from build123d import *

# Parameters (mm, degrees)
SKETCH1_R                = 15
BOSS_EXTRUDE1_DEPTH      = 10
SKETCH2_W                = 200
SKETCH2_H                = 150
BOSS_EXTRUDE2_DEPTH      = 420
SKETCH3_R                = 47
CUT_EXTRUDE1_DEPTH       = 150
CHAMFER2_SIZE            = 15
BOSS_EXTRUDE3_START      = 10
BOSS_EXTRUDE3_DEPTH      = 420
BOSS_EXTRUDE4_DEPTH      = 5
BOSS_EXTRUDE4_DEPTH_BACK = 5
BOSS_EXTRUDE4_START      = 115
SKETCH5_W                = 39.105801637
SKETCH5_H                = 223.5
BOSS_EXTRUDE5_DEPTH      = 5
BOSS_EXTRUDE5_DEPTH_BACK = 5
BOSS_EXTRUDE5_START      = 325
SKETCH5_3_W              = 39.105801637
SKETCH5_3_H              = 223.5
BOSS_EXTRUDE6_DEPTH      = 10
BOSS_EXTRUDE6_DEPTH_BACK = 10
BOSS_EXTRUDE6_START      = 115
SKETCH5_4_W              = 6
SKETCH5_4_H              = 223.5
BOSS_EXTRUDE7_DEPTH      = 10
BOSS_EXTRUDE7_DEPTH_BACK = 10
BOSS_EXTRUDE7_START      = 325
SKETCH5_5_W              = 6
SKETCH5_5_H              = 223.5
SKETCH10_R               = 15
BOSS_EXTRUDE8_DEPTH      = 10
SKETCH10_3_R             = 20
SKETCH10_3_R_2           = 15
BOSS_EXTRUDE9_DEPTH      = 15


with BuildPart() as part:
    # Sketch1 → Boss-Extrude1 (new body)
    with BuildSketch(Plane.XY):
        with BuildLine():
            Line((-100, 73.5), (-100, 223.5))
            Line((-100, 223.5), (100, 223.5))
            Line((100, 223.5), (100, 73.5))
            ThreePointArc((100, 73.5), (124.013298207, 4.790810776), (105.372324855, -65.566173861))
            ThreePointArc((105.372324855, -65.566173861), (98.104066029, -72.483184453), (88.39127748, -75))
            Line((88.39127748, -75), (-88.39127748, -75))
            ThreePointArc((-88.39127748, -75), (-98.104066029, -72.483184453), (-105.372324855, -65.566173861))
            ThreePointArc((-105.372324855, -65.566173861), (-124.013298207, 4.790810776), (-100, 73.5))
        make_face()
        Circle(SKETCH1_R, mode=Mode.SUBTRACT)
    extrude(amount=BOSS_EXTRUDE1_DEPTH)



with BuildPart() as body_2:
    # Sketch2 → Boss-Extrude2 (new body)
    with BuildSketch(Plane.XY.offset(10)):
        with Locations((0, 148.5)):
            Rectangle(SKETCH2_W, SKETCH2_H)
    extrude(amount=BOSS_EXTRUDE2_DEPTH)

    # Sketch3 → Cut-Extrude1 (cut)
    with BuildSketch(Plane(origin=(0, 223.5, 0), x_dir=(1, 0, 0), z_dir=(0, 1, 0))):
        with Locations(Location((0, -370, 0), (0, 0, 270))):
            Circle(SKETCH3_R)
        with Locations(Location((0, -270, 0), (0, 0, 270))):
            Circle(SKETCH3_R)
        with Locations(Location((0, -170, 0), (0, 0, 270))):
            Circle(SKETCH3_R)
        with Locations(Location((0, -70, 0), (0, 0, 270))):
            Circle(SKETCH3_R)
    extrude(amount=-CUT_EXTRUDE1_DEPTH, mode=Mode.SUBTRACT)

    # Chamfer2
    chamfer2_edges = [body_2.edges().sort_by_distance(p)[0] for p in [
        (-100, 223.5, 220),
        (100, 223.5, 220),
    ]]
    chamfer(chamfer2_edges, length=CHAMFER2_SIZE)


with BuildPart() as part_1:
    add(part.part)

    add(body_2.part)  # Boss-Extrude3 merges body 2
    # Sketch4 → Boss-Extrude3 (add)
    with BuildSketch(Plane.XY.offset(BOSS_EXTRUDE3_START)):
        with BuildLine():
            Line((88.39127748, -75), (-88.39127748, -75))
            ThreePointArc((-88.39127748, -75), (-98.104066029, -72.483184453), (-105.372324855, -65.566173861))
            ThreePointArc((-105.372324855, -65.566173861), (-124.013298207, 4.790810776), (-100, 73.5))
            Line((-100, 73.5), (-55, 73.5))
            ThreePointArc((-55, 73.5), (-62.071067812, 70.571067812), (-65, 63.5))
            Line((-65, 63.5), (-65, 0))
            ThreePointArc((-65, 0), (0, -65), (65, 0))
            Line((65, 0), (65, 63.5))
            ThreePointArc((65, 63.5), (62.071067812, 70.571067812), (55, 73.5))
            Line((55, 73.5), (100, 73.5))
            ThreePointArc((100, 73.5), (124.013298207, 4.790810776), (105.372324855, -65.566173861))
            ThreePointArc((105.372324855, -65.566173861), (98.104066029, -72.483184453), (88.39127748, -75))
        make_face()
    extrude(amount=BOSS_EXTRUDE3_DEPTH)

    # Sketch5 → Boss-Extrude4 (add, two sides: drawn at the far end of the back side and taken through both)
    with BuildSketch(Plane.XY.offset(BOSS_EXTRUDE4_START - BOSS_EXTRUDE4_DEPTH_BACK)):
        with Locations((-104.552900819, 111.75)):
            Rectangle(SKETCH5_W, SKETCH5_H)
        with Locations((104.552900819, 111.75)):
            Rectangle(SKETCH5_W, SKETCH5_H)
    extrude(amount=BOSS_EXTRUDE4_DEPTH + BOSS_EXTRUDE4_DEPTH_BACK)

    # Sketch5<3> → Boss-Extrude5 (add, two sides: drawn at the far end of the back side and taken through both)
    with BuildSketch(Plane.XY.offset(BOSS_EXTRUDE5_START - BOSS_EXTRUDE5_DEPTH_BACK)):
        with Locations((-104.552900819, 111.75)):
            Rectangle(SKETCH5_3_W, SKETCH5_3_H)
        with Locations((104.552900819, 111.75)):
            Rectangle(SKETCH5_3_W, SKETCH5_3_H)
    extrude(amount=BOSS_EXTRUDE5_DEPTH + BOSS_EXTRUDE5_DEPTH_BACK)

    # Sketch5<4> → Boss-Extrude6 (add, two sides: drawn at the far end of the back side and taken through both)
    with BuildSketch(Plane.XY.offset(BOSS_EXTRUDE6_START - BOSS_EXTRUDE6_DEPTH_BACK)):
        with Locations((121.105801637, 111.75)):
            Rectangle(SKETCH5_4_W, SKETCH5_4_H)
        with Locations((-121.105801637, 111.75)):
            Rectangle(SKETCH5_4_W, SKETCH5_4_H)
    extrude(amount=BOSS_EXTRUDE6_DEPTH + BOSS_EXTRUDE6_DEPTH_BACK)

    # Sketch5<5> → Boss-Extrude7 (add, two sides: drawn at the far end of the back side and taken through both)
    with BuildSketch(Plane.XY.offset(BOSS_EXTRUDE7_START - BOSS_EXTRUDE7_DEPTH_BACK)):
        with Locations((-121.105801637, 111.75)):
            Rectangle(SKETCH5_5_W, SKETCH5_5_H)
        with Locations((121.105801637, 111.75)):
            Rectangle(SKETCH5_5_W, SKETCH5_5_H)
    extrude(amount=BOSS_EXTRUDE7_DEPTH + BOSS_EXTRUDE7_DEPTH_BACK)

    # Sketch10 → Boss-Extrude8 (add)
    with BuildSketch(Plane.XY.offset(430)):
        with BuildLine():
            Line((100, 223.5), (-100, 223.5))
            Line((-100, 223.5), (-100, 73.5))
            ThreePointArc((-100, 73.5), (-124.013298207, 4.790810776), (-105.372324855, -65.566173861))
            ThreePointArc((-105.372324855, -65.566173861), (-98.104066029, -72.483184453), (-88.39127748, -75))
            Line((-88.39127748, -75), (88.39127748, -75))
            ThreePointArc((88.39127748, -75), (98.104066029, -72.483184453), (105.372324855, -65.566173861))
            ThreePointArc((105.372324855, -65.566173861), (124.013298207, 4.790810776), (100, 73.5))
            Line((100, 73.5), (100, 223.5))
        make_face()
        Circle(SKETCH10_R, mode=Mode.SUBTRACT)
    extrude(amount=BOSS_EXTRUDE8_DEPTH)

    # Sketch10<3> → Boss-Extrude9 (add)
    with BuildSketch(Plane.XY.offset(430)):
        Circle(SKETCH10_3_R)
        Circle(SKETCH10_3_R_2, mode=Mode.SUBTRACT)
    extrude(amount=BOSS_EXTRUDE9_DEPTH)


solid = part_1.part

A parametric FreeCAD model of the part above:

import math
import FreeCAD as App
import Part
import Sketcher

V = App.Vector


def edges_at(feature, points):
    """Names of the edges that pass closest to the given points."""
    edges = feature.Shape.Edges
    near = lambda p: min(range(len(edges)), key=lambda i: edges[i].distToShape(Part.Vertex(*p))[0])
    return sorted({f"Edge{near(p) + 1}" for p in points})


def add_polygon(sketch, points):
    """Adds a closed chain of lines whose ends are joined by coincident constraints."""
    first, n = sketch.GeometryCount, len(points)
    for a, b in zip(points, points[1:] + points[:1]):
        sketch.addGeometry(Part.LineSegment(App.Vector(*a, 0), App.Vector(*b, 0)), False)
    for i in range(n):
        sketch.addConstraint(Sketcher.Constraint("Coincident", first + i, 2, first + (i + 1) % n, 1))

doc = App.newDocument("Part")
params = doc.addObject("Spreadsheet::Sheet", "Params")
for row, (alias, value) in enumerate([
    ("sketch1_diameter", "30 mm"),
    ("sketch1_radius", "20 mm"),
    ("sketch1_width", "200 mm"),
    ("sketch1_height", "150 mm"),
    ("pad1_length", "10 mm"),
    ("sketch2_width", "200 mm"),
    ("sketch2_height", "150 mm"),
    ("pad2_length", "420 mm"),
    ("sketch3_diameter", "94 mm"),
    ("pocket1_length", "150 mm"),
    ("chamfer_size", "15 mm"),
    ("sketch4_radius", "20 mm"),
    ("sketch4_radius2", "10 mm"),
    ("sketch4_radius3", "65 mm"),
    ("sketch4_width", "45 mm"),
    ("sketch4_height", "63.5 mm"),
    ("pad3_length", "420 mm"),
    ("sketch5_height", "223.5 mm"),
    ("pad4_length", "5 mm"),
    ("pad4_length2", "5 mm"),
    ("sketch6_height", "223.5 mm"),
    ("pad5_length", "5 mm"),
    ("pad5_length2", "5 mm"),
    ("sketch7_width", "6 mm"),
    ("sketch7_height", "223.5 mm"),
    ("pad6_length", "10 mm"),
    ("pad6_length2", "10 mm"),
    ("sketch8_width", "6 mm"),
    ("sketch8_height", "223.5 mm"),
    ("pad7_length", "10 mm"),
    ("pad7_length2", "10 mm"),
    ("sketch9_diameter", "30 mm"),
    ("sketch9_radius", "20 mm"),
    ("sketch9_width", "200 mm"),
    ("sketch9_height", "150 mm"),
    ("pad8_length", "10 mm"),
    ("sketch10_diameter", "40 mm"),
    ("sketch10_diameter2", "30 mm"),
    ("pad9_length", "15 mm"),
], start=1):
    params.set(f"A{row}", alias)
    params.set(f"B{row}", "=" + value)
    params.setAlias(f"B{row}", alias)

body = doc.addObject("PartDesign::Body", "Body")

sketch1 = body.newObject("Sketcher::SketchObject", "Sketch")
sketch1.AttachmentSupport = (doc.getObject("XY_Plane"), [""])
sketch1.MapMode = "FlatFace"
sketch1.addGeometry([
    Part.LineSegment(V(-100, 224, 0), V(-100, 74, 0)),
    Part.ArcOfCircle(Part.Circle(V(0, 0, 0), V(0, 0, 1), 124), math.radians(144), math.radians(212)),
    Part.ArcOfCircle(Part.Circle(V(-88, -55, 0), V(0, 0, 1), 20), math.radians(-148), math.radians(-90)),
    Part.LineSegment(V(-88, -75, 0), V(88, -75, 0)),
    Part.ArcOfCircle(Part.Circle(V(88, -55, 0), V(0, 0, 1), 20), math.radians(-90), math.radians(-32)),
    Part.ArcOfCircle(Part.Circle(V(0, 0, 0), V(0, 0, 1), 124), math.radians(-32), math.radians(36)),
    Part.LineSegment(V(100, 74, 0), V(100, 224, 0)),
    Part.LineSegment(V(100, 224, 0), V(-100, 224, 0)),
    Part.Circle(V(0, 0, 0), V(0, 0, 1), 15),
], False)
sketch1.addConstraint([
    Sketcher.Constraint("Coincident", 0, 2, 1, 1),
    Sketcher.Constraint("Tangent", 1, 2, 2, 1),
    Sketcher.Constraint("Tangent", 2, 2, 3, 1),
    Sketcher.Constraint("Tangent", 3, 2, 4, 1),
    Sketcher.Constraint("Tangent", 4, 2, 5, 1),
    Sketcher.Constraint("Coincident", 5, 2, 6, 1),
    Sketcher.Constraint("Coincident", 6, 2, 7, 1),
    Sketcher.Constraint("Coincident", 7, 2, 0, 1),
    Sketcher.Constraint("Vertical", 0),
    Sketcher.Constraint("Horizontal", 3),
    Sketcher.Constraint("Vertical", 6),
    Sketcher.Constraint("Horizontal", 7),
    Sketcher.Constraint("Coincident", 1, 3, -1, 1),
    Sketcher.Constraint("Coincident", 5, 3, -1, 1),
    Sketcher.Constraint("Coincident", 8, 3, -1, 1),
    Sketcher.Constraint("Equal", 2, 4),
    Sketcher.Constraint("Equal", 1, 5),
    Sketcher.Constraint("Horizontal", 0, 2, 5, 2),
    Sketcher.Constraint("Diameter", 8, 30.0),
    Sketcher.Constraint("Radius", 2, 20.0),
    Sketcher.Constraint("DistanceX", 7, 2, 7, 1, 200.0),
    Sketcher.Constraint("DistanceY", 0, 2, 0, 1, 150.0),
    Sketcher.Constraint("DistanceY", 2, 3, -1, 1, 55.0),
    Sketcher.Constraint("DistanceY", -1, 1, 0, 2, 73.5),
])
sketch1.setExpression("Constraints[18]", "Params.sketch1_diameter")
sketch1.setExpression("Constraints[19]", "Params.sketch1_radius")
sketch1.setExpression("Constraints[20]", "Params.sketch1_width")
sketch1.setExpression("Constraints[21]", "Params.sketch1_height")
pad1 = body.newObject("PartDesign::Pad", "Pad")
pad1.Profile = sketch1
pad1.setExpression("Length", "Params.pad1_length")
body2 = doc.addObject("PartDesign::Body", "Body001")

sketch2 = body2.newObject("Sketcher::SketchObject", "Sketch001")
sketch2.AttachmentSupport = (doc.getObject("XY_Plane001"), [""])
sketch2.MapMode = "FlatFace"
sketch2.AttachmentOffset = App.Placement(V(0, 0, 10), App.Rotation())
add_polygon(sketch2, [(-100, 224), (-100, 74), (100, 74), (100, 224)])
sketch2.addConstraint([
    Sketcher.Constraint("Vertical", 0),
    Sketcher.Constraint("Horizontal", 1),
    Sketcher.Constraint("Vertical", 2),
    Sketcher.Constraint("Horizontal", 3),
    Sketcher.Constraint("DistanceX", 1, 1, 1, 2, 200.0),
    Sketcher.Constraint("DistanceY", 0, 2, 0, 1, 150.0),
    Sketcher.Constraint("DistanceX", 0, 2, -1, 1, 100.0),
    Sketcher.Constraint("DistanceY", -1, 1, 0, 2, 73.5),
])
sketch2.setExpression("Constraints[8]", "Params.sketch2_width")
sketch2.setExpression("Constraints[9]", "Params.sketch2_height")
pad2 = body2.newObject("PartDesign::Pad", "Pad001")
pad2.Profile = sketch2
pad2.setExpression("Length", "Params.pad2_length")

sketch3 = body2.newObject("Sketcher::SketchObject", "Sketch002")
sketch3.AttachmentSupport = (doc.getObject("XZ_Plane001"), [""])
sketch3.MapMode = "FlatFace"
sketch3.AttachmentOffset = App.Placement(V(0, 0, -223.5), App.Rotation())
sketch3.addGeometry([
    Part.Circle(V(0, 370, 0), V(0, 0, 1), 47),
    Part.Circle(V(0, 270, 0), V(0, 0, 1), 47),
    Part.Circle(V(0, 170, 0), V(0, 0, 1), 47),
    Part.Circle(V(0, 70, 0), V(0, 0, 1), 47),
], False)
sketch3.addConstraint([
    Sketcher.Constraint("Equal", 0, 1),
    Sketcher.Constraint("Equal", 1, 2),
    Sketcher.Constraint("Equal", 2, 3),
    Sketcher.Constraint("PointOnObject", 0, 3, -2),
    Sketcher.Constraint("PointOnObject", 1, 3, -2),
    Sketcher.Constraint("PointOnObject", 2, 3, -2),
    Sketcher.Constraint("PointOnObject", 3, 3, -2),
    Sketcher.Constraint("Diameter", 0, 94.0),
    Sketcher.Constraint("DistanceY", -1, 1, 0, 3, 370.0),
    Sketcher.Constraint("DistanceY", -1, 1, 1, 3, 270.0),
    Sketcher.Constraint("DistanceY", -1, 1, 2, 3, 170.0),
    Sketcher.Constraint("DistanceY", -1, 1, 3, 3, 70.0),
])
sketch3.setExpression("Constraints[7]", "Params.sketch3_diameter")
pocket1 = body2.newObject("PartDesign::Pocket", "Pocket")
pocket1.Profile = sketch3
pocket1.setExpression("Length", "Params.pocket1_length")
pocket1.Reversed = True
doc.recompute()

chamfer = body2.newObject("PartDesign::Chamfer", "Chamfer")
chamfer.Base = (pocket1, edges_at(pocket1, [(-100, 223.5, 220), (100, 223.5, 220)]))
chamfer.setExpression("Size", "Params.chamfer_size")
doc.recompute()

boolean = body.newObject("PartDesign::Boolean", "Boolean")
boolean.Type = "Fuse"
boolean.addObjects([body2])

sketch4 = body.newObject("Sketcher::SketchObject", "Sketch003")
sketch4.AttachmentSupport = (doc.getObject("XY_Plane"), [""])
sketch4.MapMode = "FlatFace"
sketch4.AttachmentOffset = App.Placement(V(0, 0, 10), App.Rotation())
sketch4.addGeometry([
    Part.LineSegment(V(-88, -75, 0), V(88, -75, 0)),
    Part.ArcOfCircle(Part.Circle(V(88, -55, 0), V(0, 0, 1), 20), math.radians(-90), math.radians(-32)),
    Part.ArcOfCircle(Part.Circle(V(0, 0, 0), V(0, 0, 1), 124), math.radians(-32), math.radians(36)),
    Part.LineSegment(V(100, 74, 0), V(55, 74, 0)),
    Part.ArcOfCircle(Part.Circle(V(55, 64, 0), V(0, 0, 1), 10), math.radians(0), math.radians(90)),
    Part.LineSegment(V(65, 64, 0), V(65, 0, 0)),
    Part.ArcOfCircle(Part.Circle(V(0, 0, 0), V(0, 0, 1), 65), math.radians(180), math.radians(360)),
    Part.LineSegment(V(-65, 0, 0), V(-65, 64, 0)),
    Part.ArcOfCircle(Part.Circle(V(-55, 64, 0), V(0, 0, 1), 10), math.radians(90), math.radians(180)),
    Part.LineSegment(V(-55, 74, 0), V(-100, 74, 0)),
    Part.ArcOfCircle(Part.Circle(V(0, 0, 0), V(0, 0, 1), 124), math.radians(144), math.radians(212)),
    Part.ArcOfCircle(Part.Circle(V(-88, -55, 0), V(0, 0, 1), 20), math.radians(-148), math.radians(-90)),
], False)
sketch4.addConstraint([
    Sketcher.Constraint("Tangent", 0, 2, 1, 1),
    Sketcher.Constraint("Tangent", 1, 2, 2, 1),
    Sketcher.Constraint("Coincident", 2, 2, 3, 1),
    Sketcher.Constraint("Tangent", 3, 2, 4, 2),
    Sketcher.Constraint("Tangent", 4, 1, 5, 1),
    Sketcher.Constraint("Tangent", 5, 2, 6, 2),
    Sketcher.Constraint("Tangent", 6, 1, 7, 1),
    Sketcher.Constraint("Tangent", 7, 2, 8, 2),
    Sketcher.Constraint("Tangent", 8, 1, 9, 1),
    Sketcher.Constraint("Coincident", 9, 2, 10, 1),
    Sketcher.Constraint("Tangent", 10, 2, 11, 1),
    Sketcher.Constraint("Tangent", 11, 2, 0, 1),
    Sketcher.Constraint("Horizontal", 0),
    Sketcher.Constraint("Horizontal", 3),
    Sketcher.Constraint("Vertical", 5),
    Sketcher.Constraint("Vertical", 7),
    Sketcher.Constraint("Horizontal", 9),
    Sketcher.Constraint("Coincident", 2, 3, -1, 1),
    Sketcher.Constraint("Coincident", 6, 3, -1, 1),
    Sketcher.Constraint("Coincident", 10, 3, -1, 1),
    Sketcher.Constraint("Equal", 4, 8),
    Sketcher.Constraint("Equal", 2, 10),
    Sketcher.Constraint("Equal", 1, 11),
    Sketcher.Constraint("Horizontal", 4, 3, 8, 3),
    Sketcher.Constraint("Radius", 1, 20.0),
    Sketcher.Constraint("Radius", 4, 10.0),
    Sketcher.Constraint("Radius", 6, 65.0),
    Sketcher.Constraint("DistanceX", 3, 2, 3, 1, 45.0),
    Sketcher.Constraint("DistanceY", 5, 2, 5, 1, 63.5),
    Sketcher.Constraint("DistanceY", 1, 3, -1, 1, 55.0),
])
sketch4.setExpression("Constraints[24]", "Params.sketch4_radius")
sketch4.setExpression("Constraints[25]", "Params.sketch4_radius2")
sketch4.setExpression("Constraints[26]", "Params.sketch4_radius3")
sketch4.setExpression("Constraints[27]", "Params.sketch4_width")
sketch4.setExpression("Constraints[28]", "Params.sketch4_height")
pad3 = body.newObject("PartDesign::Pad", "Pad002")
pad3.Profile = sketch4
pad3.setExpression("Length", "Params.pad3_length")

sketch5 = body.newObject("Sketcher::SketchObject", "Sketch004")
sketch5.AttachmentSupport = (doc.getObject("XY_Plane"), [""])
sketch5.MapMode = "FlatFace"
sketch5.AttachmentOffset = App.Placement(V(0, 0, 115), App.Rotation())
add_polygon(sketch5, [(-124, 224), (-124, 0), (-85, 0), (-85, 224)])
add_polygon(sketch5, [(85, 224), (85, 0), (124, 0), (124, 224)])
sketch5.addConstraint([
    Sketcher.Constraint("Vertical", 0),
    Sketcher.Constraint("Horizontal", 1),
    Sketcher.Constraint("Vertical", 2),
    Sketcher.Constraint("Horizontal", 3),
    Sketcher.Constraint("Vertical", 4),
    Sketcher.Constraint("Horizontal", 5),
    Sketcher.Constraint("Vertical", 6),
    Sketcher.Constraint("Horizontal", 7),
    Sketcher.Constraint("Symmetric", 1, 2, 4, 2, -1, 1),
    Sketcher.Constraint("Symmetric", 0, 2, 5, 2, -2),
    Sketcher.Constraint("Horizontal", 3, 2, 6, 2),
    Sketcher.Constraint("DistanceY", 0, 2, 0, 1, 223.5),
    Sketcher.Constraint("DistanceX", 1, 2, -1, 1, 85.0),
    Sketcher.Constraint("DistanceX", 1, 1, 1, 2, 39.105802),
])
sketch5.setExpression("Constraints[19]", "Params.sketch5_height")
pad4 = body.newObject("PartDesign::Pad", "Pad003")
pad4.Profile = sketch5
pad4.Type = "TwoLengths"
pad4.setExpression("Length", "Params.pad4_length")
pad4.setExpression("Length2", "Params.pad4_length2")

sketch6 = body.newObject("Sketcher::SketchObject", "Sketch005")
sketch6.AttachmentSupport = (doc.getObject("XY_Plane"), [""])
sketch6.MapMode = "FlatFace"
sketch6.AttachmentOffset = App.Placement(V(0, 0, 325), App.Rotation())
add_polygon(sketch6, [(-124, 224), (-124, 0), (-85, 0), (-85, 224)])
add_polygon(sketch6, [(85, 224), (85, 0), (124, 0), (124, 224)])
sketch6.addConstraint([
    Sketcher.Constraint("Vertical", 0),
    Sketcher.Constraint("Horizontal", 1),
    Sketcher.Constraint("Vertical", 2),
    Sketcher.Constraint("Horizontal", 3),
    Sketcher.Constraint("Vertical", 4),
    Sketcher.Constraint("Horizontal", 5),
    Sketcher.Constraint("Vertical", 6),
    Sketcher.Constraint("Horizontal", 7),
    Sketcher.Constraint("Symmetric", 1, 2, 4, 2, -1, 1),
    Sketcher.Constraint("Symmetric", 0, 2, 5, 2, -2),
    Sketcher.Constraint("Horizontal", 3, 2, 6, 2),
    Sketcher.Constraint("DistanceY", 0, 2, 0, 1, 223.5),
    Sketcher.Constraint("DistanceX", 1, 2, -1, 1, 85.0),
    Sketcher.Constraint("DistanceX", 1, 1, 1, 2, 39.105802),
])
sketch6.setExpression("Constraints[19]", "Params.sketch6_height")
pad5 = body.newObject("PartDesign::Pad", "Pad004")
pad5.Profile = sketch6
pad5.Type = "TwoLengths"
pad5.setExpression("Length", "Params.pad5_length")
pad5.setExpression("Length2", "Params.pad5_length2")

sketch7 = body.newObject("Sketcher::SketchObject", "Sketch006")
sketch7.AttachmentSupport = (doc.getObject("XY_Plane"), [""])
sketch7.MapMode = "FlatFace"
sketch7.AttachmentOffset = App.Placement(V(0, 0, 115), App.Rotation())
add_polygon(sketch7, [(118, 224), (118, 0), (124, 0), (124, 224)])
add_polygon(sketch7, [(-124, 224), (-124, 0), (-118, 0), (-118, 224)])
sketch7.addConstraint([
    Sketcher.Constraint("Vertical", 0),
    Sketcher.Constraint("Horizontal", 1),
    Sketcher.Constraint("Vertical", 2),
    Sketcher.Constraint("Horizontal", 3),
    Sketcher.Constraint("Vertical", 4),
    Sketcher.Constraint("Horizontal", 5),
    Sketcher.Constraint("Vertical", 6),
    Sketcher.Constraint("Horizontal", 7),
    Sketcher.Constraint("Symmetric", 1, 2, 4, 2, -1, 1),
    Sketcher.Constraint("Symmetric", 0, 2, 5, 2, -2),
    Sketcher.Constraint("Horizontal", 3, 2, 6, 2),
    Sketcher.Constraint("DistanceX", 1, 1, 1, 2, 6.0),
    Sketcher.Constraint("DistanceY", 0, 2, 0, 1, 223.5),
    Sketcher.Constraint("DistanceX", -1, 1, 0, 2, 118.105802),
])
sketch7.setExpression("Constraints[19]", "Params.sketch7_width")
sketch7.setExpression("Constraints[20]", "Params.sketch7_height")
pad6 = body.newObject("PartDesign::Pad", "Pad005")
pad6.Profile = sketch7
pad6.Type = "TwoLengths"
pad6.setExpression("Length", "Params.pad6_length")
pad6.setExpression("Length2", "Params.pad6_length2")

sketch8 = body.newObject("Sketcher::SketchObject", "Sketch007")
sketch8.AttachmentSupport = (doc.getObject("XY_Plane"), [""])
sketch8.MapMode = "FlatFace"
sketch8.AttachmentOffset = App.Placement(V(0, 0, 325), App.Rotation())
add_polygon(sketch8, [(-124, 224), (-124, 0), (-118, 0), (-118, 224)])
add_polygon(sketch8, [(118, 224), (118, 0), (124, 0), (124, 224)])
sketch8.addConstraint([
    Sketcher.Constraint("Vertical", 0),
    Sketcher.Constraint("Horizontal", 1),
    Sketcher.Constraint("Vertical", 2),
    Sketcher.Constraint("Horizontal", 3),
    Sketcher.Constraint("Vertical", 4),
    Sketcher.Constraint("Horizontal", 5),
    Sketcher.Constraint("Vertical", 6),
    Sketcher.Constraint("Horizontal", 7),
    Sketcher.Constraint("Symmetric", 1, 2, 4, 2, -1, 1),
    Sketcher.Constraint("Symmetric", 0, 2, 5, 2, -2),
    Sketcher.Constraint("Horizontal", 3, 2, 6, 2),
    Sketcher.Constraint("DistanceX", 1, 1, 1, 2, 6.0),
    Sketcher.Constraint("DistanceY", 0, 2, 0, 1, 223.5),
    Sketcher.Constraint("DistanceX", 0, 2, -1, 1, 124.105802),
])
sketch8.setExpression("Constraints[19]", "Params.sketch8_width")
sketch8.setExpression("Constraints[20]", "Params.sketch8_height")
pad7 = body.newObject("PartDesign::Pad", "Pad006")
pad7.Profile = sketch8
pad7.Type = "TwoLengths"
pad7.setExpression("Length", "Params.pad7_length")
pad7.setExpression("Length2", "Params.pad7_length2")

sketch9 = body.newObject("Sketcher::SketchObject", "Sketch008")
sketch9.AttachmentSupport = (doc.getObject("XY_Plane"), [""])
sketch9.MapMode = "FlatFace"
sketch9.AttachmentOffset = App.Placement(V(0, 0, 430), App.Rotation())
sketch9.addGeometry([
    Part.LineSegment(V(100, 224, 0), V(-100, 224, 0)),
    Part.LineSegment(V(-100, 224, 0), V(-100, 74, 0)),
    Part.ArcOfCircle(Part.Circle(V(0, 0, 0), V(0, 0, 1), 124), math.radians(144), math.radians(212)),
    Part.ArcOfCircle(Part.Circle(V(-88, -55, 0), V(0, 0, 1), 20), math.radians(-148), math.radians(-90)),
    Part.LineSegment(V(-88, -75, 0), V(88, -75, 0)),
    Part.ArcOfCircle(Part.Circle(V(88, -55, 0), V(0, 0, 1), 20), math.radians(-90), math.radians(-32)),
    Part.ArcOfCircle(Part.Circle(V(0, 0, 0), V(0, 0, 1), 124), math.radians(-32), math.radians(36)),
    Part.LineSegment(V(100, 74, 0), V(100, 224, 0)),
    Part.Circle(V(0, 0, 0), V(0, 0, 1), 15),
], False)
sketch9.addConstraint([
    Sketcher.Constraint("Coincident", 0, 2, 1, 1),
    Sketcher.Constraint("Coincident", 1, 2, 2, 1),
    Sketcher.Constraint("Tangent", 2, 2, 3, 1),
    Sketcher.Constraint("Tangent", 3, 2, 4, 1),
    Sketcher.Constraint("Tangent", 4, 2, 5, 1),
    Sketcher.Constraint("Tangent", 5, 2, 6, 1),
    Sketcher.Constraint("Coincident", 6, 2, 7, 1),
    Sketcher.Constraint("Coincident", 7, 2, 0, 1),
    Sketcher.Constraint("Horizontal", 0),
    Sketcher.Constraint("Vertical", 1),
    Sketcher.Constraint("Horizontal", 4),
    Sketcher.Constraint("Vertical", 7),
    Sketcher.Constraint("Coincident", 2, 3, -1, 1),
    Sketcher.Constraint("Coincident", 6, 3, -1, 1),
    Sketcher.Constraint("Coincident", 8, 3, -1, 1),
    Sketcher.Constraint("Equal", 3, 5),
    Sketcher.Constraint("Equal", 2, 6),
    Sketcher.Constraint("Horizontal", 1, 2, 6, 2),
    Sketcher.Constraint("Diameter", 8, 30.0),
    Sketcher.Constraint("Radius", 3, 20.0),
    Sketcher.Constraint("DistanceX", 0, 2, 0, 1, 200.0),
    Sketcher.Constraint("DistanceY", 1, 2, 1, 1, 150.0),
    Sketcher.Constraint("DistanceY", 3, 3, -1, 1, 55.0),
    Sketcher.Constraint("DistanceY", -1, 1, 0, 2, 223.5),
])
sketch9.setExpression("Constraints[18]", "Params.sketch9_diameter")
sketch9.setExpression("Constraints[19]", "Params.sketch9_radius")
sketch9.setExpression("Constraints[20]", "Params.sketch9_width")
sketch9.setExpression("Constraints[21]", "Params.sketch9_height")
pad8 = body.newObject("PartDesign::Pad", "Pad007")
pad8.Profile = sketch9
pad8.setExpression("Length", "Params.pad8_length")

sketch10 = body.newObject("Sketcher::SketchObject", "Sketch009")
sketch10.AttachmentSupport = (doc.getObject("XY_Plane"), [""])
sketch10.MapMode = "FlatFace"
sketch10.AttachmentOffset = App.Placement(V(0, 0, 430), App.Rotation())
sketch10.addGeometry([
    Part.Circle(V(0, 0, 0), V(0, 0, 1), 20),
    Part.Circle(V(0, 0, 0), V(0, 0, 1), 15),
], False)
sketch10.addConstraint([
    Sketcher.Constraint("Coincident", 0, 3, -1, 1),
    Sketcher.Constraint("Coincident", 1, 3, -1, 1),
    Sketcher.Constraint("Diameter", 0, 40.0),
    Sketcher.Constraint("Diameter", 1, 30.0),
])
sketch10.setExpression("Constraints[2]", "Params.sketch10_diameter")
sketch10.setExpression("Constraints[3]", "Params.sketch10_diameter2")
pad9 = body.newObject("PartDesign::Pad", "Pad008")
pad9.Profile = sketch10
pad9.setExpression("Length", "Params.pad9_length")

doc.recompute()
